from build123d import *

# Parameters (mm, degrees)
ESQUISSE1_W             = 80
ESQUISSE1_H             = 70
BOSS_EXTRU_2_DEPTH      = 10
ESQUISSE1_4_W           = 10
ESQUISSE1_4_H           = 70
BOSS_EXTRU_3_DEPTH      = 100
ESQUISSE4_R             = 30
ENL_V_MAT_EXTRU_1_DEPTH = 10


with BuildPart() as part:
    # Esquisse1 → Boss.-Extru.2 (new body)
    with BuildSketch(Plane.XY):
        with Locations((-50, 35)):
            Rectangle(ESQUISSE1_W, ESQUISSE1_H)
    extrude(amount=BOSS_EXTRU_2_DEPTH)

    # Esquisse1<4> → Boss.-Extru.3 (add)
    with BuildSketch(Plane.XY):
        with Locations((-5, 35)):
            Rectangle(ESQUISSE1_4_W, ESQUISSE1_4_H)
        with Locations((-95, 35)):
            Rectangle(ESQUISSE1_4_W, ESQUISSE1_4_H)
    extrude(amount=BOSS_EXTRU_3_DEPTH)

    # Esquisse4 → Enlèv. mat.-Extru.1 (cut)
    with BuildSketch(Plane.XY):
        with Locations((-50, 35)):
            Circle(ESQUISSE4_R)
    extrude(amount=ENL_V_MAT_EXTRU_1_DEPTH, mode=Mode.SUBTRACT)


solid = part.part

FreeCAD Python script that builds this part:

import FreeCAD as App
import Part
import Sketcher


def add_polygon(sketch, points):
    """Adds a closed chain of lines whose ends are joined by coincident constraints."""
    first, n = sketch.GeometryCount, len(points)
    for a, b in zip(points, points[1:] + points[:1]):
        sketch.addGeometry(Part.LineSegment(App.Vector(*a, 0), App.Vector(*b, 0)), False)
    for i in range(n):
        sketch.addConstraint(Sketcher.Constraint("Coincident", first + i, 2, first + (i + 1) % n, 1))

doc = App.newDocument("Part")
body = doc.addObject("PartDesign::Body", "Body")

# Sketch on XY plane
sketch1 = doc.addObject("Sketcher::SketchObject", "Sketch")
body.addObject(sketch1)
sketch1.AttachmentSupport = (doc.XY_Plane, [""])
sketch1.MapMode = "FlatFace"
add_polygon(sketch1, [(-90, 70), (-90, 0), (-10, 0), (-10, 70)])  # lines 0-3
sketch1.addConstraint(Sketcher.Constraint("Vertical", 0))
sketch1.addConstraint(Sketcher.Constraint("Horizontal", 1))
sketch1.addConstraint(Sketcher.Constraint("Vertical", 2))
sketch1.addConstraint(Sketcher.Constraint("Horizontal", 3))
sketch1.addConstraint(Sketcher.Constraint("PointOnObject", 0, 2, -1))
sketch1.addConstraint(Sketcher.Constraint("DistanceX", 1, 1, 1, 2, 80.0))
sketch1.addConstraint(Sketcher.Constraint("DistanceY", 0, 2, 0, 1, 70.0))
sketch1.addConstraint(Sketcher.Constraint("DistanceX", 0, 2, -1, 1, 90.0))
pad1 = doc.addObject("PartDesign::Pad", "Pad")
body.addObject(pad1)
pad1.Profile = sketch1
pad1.Length = 10

# Sketch on XY plane
sketch2 = doc.addObject("Sketcher::SketchObject", "Sketch001")
body.addObject(sketch2)
sketch2.AttachmentSupport = (doc.XY_Plane, [""])
sketch2.MapMode = "FlatFace"
add_polygon(sketch2, [(-10, 70), (-10, 0), (0, 0), (0, 70)])  # lines 0-3
add_polygon(sketch2, [(-100, 70), (-100, 0), (-90, 0), (-90, 70)])  # lines 4-7
sketch2.addConstraint(Sketcher.Constraint("Vertical", 0))
sketch2.addConstraint(Sketcher.Constraint("Horizontal", 1))
sketch2.addConstraint(Sketcher.Constraint("Vertical", 2))
sketch2.addConstraint(Sketcher.Constraint("Horizontal", 3))
sketch2.addConstraint(Sketcher.Constraint("Vertical", 4))
sketch2.addConstraint(Sketcher.Constraint("Horizontal", 5))
sketch2.addConstraint(Sketcher.Constraint("Vertical", 6))
sketch2.addConstraint(Sketcher.Constraint("Horizontal", 7))
sketch2.addConstraint(Sketcher.Constraint("Coincident", 1, 2, -1, 1))
sketch2.addConstraint(Sketcher.Constraint("PointOnObject", 4, 2, -1))
sketch2.addConstraint(Sketcher.Constraint("Horizontal", 3, 2, 6, 2))
sketch2.addConstraint(Sketcher.Constraint("Equal", 3, 5))
sketch2.addConstraint(Sketcher.Constraint("DistanceX", 1, 1, 1, 2, 10.0))
sketch2.addConstraint(Sketcher.Constraint("DistanceY", 0, 2, 0, 1, 70.0))
sketch2.addConstraint(Sketcher.Constraint("DistanceX", 4, 2, -1, 1, 100.0))
pad2 = doc.addObject("PartDesign::Pad", "Pad001")
body.addObject(pad2)
pad2.Profile = sketch2
pad2.Length = 100

# Sketch on XY plane
sketch3 = doc.addObject("Sketcher::SketchObject", "Sketch002")
body.addObject(sketch3)
sketch3.AttachmentSupport = (doc.XY_Plane, [""])
sketch3.MapMode = "FlatFace"
sketch3.addGeometry(Part.Circle(App.Vector(-50, 35, 0), App.Vector(0, 0, 1), 30), False)
sketch3.addConstraint(Sketcher.Constraint("Diameter", 0, 60.0))
sketch3.addConstraint(Sketcher.Constraint("DistanceX", 0, 3, -1, 1, 50.0))
sketch3.addConstraint(Sketcher.Constraint("DistanceY", -1, 1, 0, 3, 35.0))
pocket1 = doc.addObject("PartDesign::Pocket", "Pocket")
body.addObject(pocket1)
pocket1.Profile = sketch3
pocket1.Length = 10
pocket1.Reversed = True

doc.recompute()
